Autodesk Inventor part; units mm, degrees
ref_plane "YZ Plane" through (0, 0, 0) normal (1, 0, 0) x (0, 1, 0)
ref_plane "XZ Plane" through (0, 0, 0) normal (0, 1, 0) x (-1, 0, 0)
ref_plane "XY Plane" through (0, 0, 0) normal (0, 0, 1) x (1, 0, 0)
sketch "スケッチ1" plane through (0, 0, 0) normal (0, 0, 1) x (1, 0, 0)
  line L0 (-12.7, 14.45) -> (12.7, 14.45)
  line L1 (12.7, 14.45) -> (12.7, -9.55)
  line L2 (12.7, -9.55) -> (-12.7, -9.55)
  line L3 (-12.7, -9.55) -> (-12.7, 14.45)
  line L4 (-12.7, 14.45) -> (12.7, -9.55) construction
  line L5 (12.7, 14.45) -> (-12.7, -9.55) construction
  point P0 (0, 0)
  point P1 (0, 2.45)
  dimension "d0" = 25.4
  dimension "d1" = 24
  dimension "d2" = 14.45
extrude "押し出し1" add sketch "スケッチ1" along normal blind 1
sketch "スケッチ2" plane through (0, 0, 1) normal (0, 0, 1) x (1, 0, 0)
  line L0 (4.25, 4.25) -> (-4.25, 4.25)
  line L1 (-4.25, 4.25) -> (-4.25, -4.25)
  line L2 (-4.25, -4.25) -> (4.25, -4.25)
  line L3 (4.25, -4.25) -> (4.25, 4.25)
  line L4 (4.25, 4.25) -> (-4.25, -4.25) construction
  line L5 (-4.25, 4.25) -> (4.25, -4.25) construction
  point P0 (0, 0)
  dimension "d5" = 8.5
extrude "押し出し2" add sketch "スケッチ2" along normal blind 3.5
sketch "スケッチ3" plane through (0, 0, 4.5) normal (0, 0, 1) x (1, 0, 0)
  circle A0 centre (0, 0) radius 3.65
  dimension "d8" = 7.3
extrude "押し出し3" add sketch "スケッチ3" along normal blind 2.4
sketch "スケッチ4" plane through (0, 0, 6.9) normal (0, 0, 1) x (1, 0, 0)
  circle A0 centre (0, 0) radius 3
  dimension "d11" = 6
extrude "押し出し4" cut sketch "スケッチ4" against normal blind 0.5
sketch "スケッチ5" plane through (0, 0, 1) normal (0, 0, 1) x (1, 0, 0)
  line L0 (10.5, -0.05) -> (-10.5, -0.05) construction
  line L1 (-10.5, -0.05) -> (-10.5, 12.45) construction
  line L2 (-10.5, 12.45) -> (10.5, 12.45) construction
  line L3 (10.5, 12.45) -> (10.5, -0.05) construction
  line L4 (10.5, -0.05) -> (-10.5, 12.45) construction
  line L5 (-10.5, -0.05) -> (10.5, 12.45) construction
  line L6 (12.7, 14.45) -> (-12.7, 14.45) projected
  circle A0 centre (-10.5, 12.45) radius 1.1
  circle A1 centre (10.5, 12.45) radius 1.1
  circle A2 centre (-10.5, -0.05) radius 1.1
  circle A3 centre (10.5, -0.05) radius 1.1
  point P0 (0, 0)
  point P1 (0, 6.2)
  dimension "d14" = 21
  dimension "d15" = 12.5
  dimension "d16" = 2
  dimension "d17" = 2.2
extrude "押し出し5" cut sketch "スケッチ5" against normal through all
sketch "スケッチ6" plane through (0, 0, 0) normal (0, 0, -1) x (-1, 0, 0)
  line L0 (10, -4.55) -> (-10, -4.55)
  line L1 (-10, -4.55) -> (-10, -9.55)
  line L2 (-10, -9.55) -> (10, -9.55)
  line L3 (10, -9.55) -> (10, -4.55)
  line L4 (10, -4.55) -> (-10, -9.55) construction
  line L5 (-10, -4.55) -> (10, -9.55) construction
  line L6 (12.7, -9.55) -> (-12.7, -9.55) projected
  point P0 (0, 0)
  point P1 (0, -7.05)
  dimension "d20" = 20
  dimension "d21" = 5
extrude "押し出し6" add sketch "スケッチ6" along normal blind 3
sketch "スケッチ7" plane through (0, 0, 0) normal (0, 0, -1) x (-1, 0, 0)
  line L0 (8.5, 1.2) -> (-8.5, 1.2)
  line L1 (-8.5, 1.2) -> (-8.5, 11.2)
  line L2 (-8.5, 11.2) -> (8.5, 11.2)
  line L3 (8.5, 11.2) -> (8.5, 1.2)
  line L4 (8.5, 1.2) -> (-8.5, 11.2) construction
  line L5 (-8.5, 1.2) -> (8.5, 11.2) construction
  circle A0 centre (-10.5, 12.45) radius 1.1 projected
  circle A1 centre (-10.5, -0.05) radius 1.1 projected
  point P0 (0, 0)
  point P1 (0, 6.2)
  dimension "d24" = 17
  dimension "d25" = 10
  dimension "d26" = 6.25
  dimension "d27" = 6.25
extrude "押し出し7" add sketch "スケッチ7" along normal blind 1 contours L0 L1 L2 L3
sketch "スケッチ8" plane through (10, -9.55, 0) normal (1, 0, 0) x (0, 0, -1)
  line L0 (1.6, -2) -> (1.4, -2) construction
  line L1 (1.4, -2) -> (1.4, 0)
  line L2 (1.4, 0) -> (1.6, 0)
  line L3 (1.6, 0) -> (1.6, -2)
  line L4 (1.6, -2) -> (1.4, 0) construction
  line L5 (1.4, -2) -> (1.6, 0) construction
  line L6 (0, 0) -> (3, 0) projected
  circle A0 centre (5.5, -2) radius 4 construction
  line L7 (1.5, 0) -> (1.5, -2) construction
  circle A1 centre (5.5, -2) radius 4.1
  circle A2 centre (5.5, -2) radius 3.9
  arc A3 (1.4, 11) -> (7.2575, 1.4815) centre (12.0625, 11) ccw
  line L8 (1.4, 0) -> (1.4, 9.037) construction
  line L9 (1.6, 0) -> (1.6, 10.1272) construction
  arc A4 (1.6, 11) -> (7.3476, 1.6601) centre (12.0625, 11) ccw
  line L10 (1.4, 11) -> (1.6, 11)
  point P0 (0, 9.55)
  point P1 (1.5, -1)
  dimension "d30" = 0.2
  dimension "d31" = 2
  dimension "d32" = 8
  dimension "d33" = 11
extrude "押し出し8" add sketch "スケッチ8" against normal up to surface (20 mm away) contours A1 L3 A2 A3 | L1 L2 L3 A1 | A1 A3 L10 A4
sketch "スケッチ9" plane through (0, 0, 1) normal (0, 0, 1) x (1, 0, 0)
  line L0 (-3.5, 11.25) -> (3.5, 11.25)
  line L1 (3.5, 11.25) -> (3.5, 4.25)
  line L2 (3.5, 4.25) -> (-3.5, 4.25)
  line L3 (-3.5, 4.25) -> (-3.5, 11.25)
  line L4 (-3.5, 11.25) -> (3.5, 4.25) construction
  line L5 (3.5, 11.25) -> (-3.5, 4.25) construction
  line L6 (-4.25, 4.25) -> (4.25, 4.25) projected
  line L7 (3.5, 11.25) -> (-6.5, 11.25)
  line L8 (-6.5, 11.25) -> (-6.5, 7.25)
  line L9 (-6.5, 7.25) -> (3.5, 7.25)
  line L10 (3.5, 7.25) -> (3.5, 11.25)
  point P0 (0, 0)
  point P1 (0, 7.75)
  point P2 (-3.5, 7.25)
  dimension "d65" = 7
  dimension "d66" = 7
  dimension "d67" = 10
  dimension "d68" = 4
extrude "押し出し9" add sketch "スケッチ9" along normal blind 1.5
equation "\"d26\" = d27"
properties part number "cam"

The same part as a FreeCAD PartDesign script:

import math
import FreeCAD as App
import Part
import Sketcher
Q = App.Units.Quantity


def add_polygon(sketch, points):
    """Adds a closed chain of lines whose ends are joined by coincident constraints."""
    first, n = sketch.GeometryCount, len(points)
    for a, b in zip(points, points[1:] + points[:1]):
        sketch.addGeometry(Part.LineSegment(App.Vector(*a, 0), App.Vector(*b, 0)), False)
    for i in range(n):
        sketch.addConstraint(Sketcher.Constraint("Coincident", first + i, 2, first + (i + 1) % n, 1))

doc = App.newDocument("Part")
body = doc.addObject("PartDesign::Body", "Body")

sketch1 = body.newObject("Sketcher::SketchObject", "Sketch")
sketch1.AttachmentSupport = (doc.getObject("XY_Plane"), [""])
sketch1.MapMode = "FlatFace"
add_polygon(sketch1, [(12.7, 14.45), (-12.7, 14.45), (-12.7, -9.55), (12.7, -9.55)])
sketch1.addConstraint([
    Sketcher.Constraint("Horizontal", 0),
    Sketcher.Constraint("Vertical", 1),
    Sketcher.Constraint("Horizontal", 2),
    Sketcher.Constraint("Vertical", 3),
    Sketcher.Constraint("DistanceY", 1, 2, 1, 1, Q("24 mm")),
    Sketcher.Constraint("DistanceX", 0, 2, 0, 1, Q("25.4 mm")),
    Sketcher.Constraint("DistanceY", -1, 1, 0, 2, Q("14.45 mm")),
    Sketcher.Constraint("DistanceX", 0, 2, -1, 1, Q("12.7 mm")),
])
pad1 = body.newObject("PartDesign::Pad", "Pad")
pad1.Profile = sketch1
pad1.Length = 1

sketch2 = body.newObject("Sketcher::SketchObject", "Sketch001")
sketch2.AttachmentSupport = (doc.getObject("XY_Plane"), [""])
sketch2.MapMode = "FlatFace"
sketch2.AttachmentOffset = App.Placement(App.Vector(0, 0, 1), App.Rotation())
add_polygon(sketch2, [(4.25, -4.25), (4.25, 4.25), (-4.25, 4.25), (-4.25, -4.25)])
sketch2.addConstraint([
    Sketcher.Constraint("Vertical", 0),
    Sketcher.Constraint("Horizontal", 1),
    Sketcher.Constraint("Vertical", 2),
    Sketcher.Constraint("Horizontal", 3),
    Sketcher.Constraint("Symmetric", 0, 2, 2, 2, -1, 1),
    Sketcher.Constraint("Equal", 3, 0),
    Sketcher.Constraint("DistanceX", 1, 2, 1, 1, Q("8.5 mm")),
])
pad2 = body.newObject("PartDesign::Pad", "Pad001")
pad2.Profile = sketch2
pad2.Length = 3.5

sketch3 = body.newObject("Sketcher::SketchObject", "Sketch002")
sketch3.AttachmentSupport = (doc.getObject("XY_Plane"), [""])
sketch3.MapMode = "FlatFace"
sketch3.AttachmentOffset = App.Placement(App.Vector(0, 0, 4.5), App.Rotation())
sketch3.addGeometry(Part.Circle(App.Vector(0, 0, 0), App.Vector(0, 0, 1), 3.65), False)
sketch3.addConstraint([
    Sketcher.Constraint("Coincident", 0, 3, -1, 1),
    Sketcher.Constraint("Diameter", 0, Q("7.3 mm")),
])
pad3 = body.newObject("PartDesign::Pad", "Pad002")
pad3.Profile = sketch3
pad3.Length = 2.4

sketch4 = body.newObject("Sketcher::SketchObject", "Sketch003")
sketch4.AttachmentSupport = (doc.getObject("XY_Plane"), [""])
sketch4.MapMode = "FlatFace"
sketch4.AttachmentOffset = App.Placement(App.Vector(0, 0, 6.9), App.Rotation())
sketch4.addGeometry(Part.Circle(App.Vector(0, 0, 0), App.Vector(0, 0, 1), 3), False)
sketch4.addConstraint([
    Sketcher.Constraint("Coincident", 0, 3, -1, 1),
    Sketcher.Constraint("Diameter", 0, Q("6 mm")),
])
pocket1 = body.newObject("PartDesign::Pocket", "Pocket")
pocket1.Profile = sketch4
pocket1.Length = 0.5

sketch5 = body.newObject("Sketcher::SketchObject", "Sketch004")
sketch5.AttachmentSupport = (doc.getObject("XY_Plane"), [""])
sketch5.MapMode = "FlatFace"
sketch5.AttachmentOffset = App.Placement(App.Vector(0, 0, 1), App.Rotation())
sketch5.addGeometry([
    Part.Circle(App.Vector(-10.5, 12.45, 0), App.Vector(0, 0, 1), 1.1),
    Part.Circle(App.Vector(10.5, 12.45, 0), App.Vector(0, 0, 1), 1.1),
    Part.Circle(App.Vector(-10.5, -0.05, 0), App.Vector(0, 0, 1), 1.1),
    Part.Circle(App.Vector(10.5, -0.05, 0), App.Vector(0, 0, 1), 1.1),
], False)
sketch5.addConstraint([
    Sketcher.Constraint("Equal", 0, 1),
    Sketcher.Constraint("Equal", 1, 2),
    Sketcher.Constraint("Equal", 2, 3),
    Sketcher.Constraint("Symmetric", 0, 3, 1, 3, -2),
    Sketcher.Constraint("Symmetric", 2, 3, 3, 3, -2),
    Sketcher.Constraint("Vertical", 0, 3, 2, 3),
    Sketcher.Constraint("Diameter", 0, Q("2.2 mm")),
    Sketcher.Constraint("DistanceX", 0, 3, 1, 3, Q("21 mm")),
    Sketcher.Constraint("DistanceY", 2, 3, 0, 3, Q("12.5 mm")),
    Sketcher.Constraint("DistanceY", -1, 1, 0, 3, Q("12.45 mm")),
])
pocket2 = body.newObject("PartDesign::Pocket", "Pocket001")
pocket2.Profile = sketch5
pocket2.Type = "ThroughAll"

sketch6 = body.newObject("Sketcher::SketchObject", "Sketch005")
sketch6.AttachmentSupport = (doc.getObject("XY_Plane"), [""])
sketch6.MapMode = "FlatFace"
add_polygon(sketch6, [(-10, -9.55), (-10, -4.55), (10, -4.55), (10, -9.55)])
sketch6.addConstraint([
    Sketcher.Constraint("Vertical", 0),
    Sketcher.Constraint("Horizontal", 1),
    Sketcher.Constraint("Vertical", 2),
    Sketcher.Constraint("Horizontal", 3),
    Sketcher.Constraint("DistanceX", 1, 1, 1, 2, Q("20 mm")),
    Sketcher.Constraint("DistanceY", 0, 1, 0, 2, Q("5 mm")),
    Sketcher.Constraint("DistanceX", 0, 2, -1, 1, Q("10 mm")),
    Sketcher.Constraint("DistanceY", 0, 2, -1, 1, Q("4.55 mm")),
])
pad4 = body.newObject("PartDesign::Pad", "Pad003")
pad4.Profile = sketch6
pad4.Length = 3
pad4.Reversed = True

sketch7 = body.newObject("Sketcher::SketchObject", "Sketch006")
sketch7.AttachmentSupport = (doc.getObject("XY_Plane"), [""])
sketch7.MapMode = "FlatFace"
add_polygon(sketch7, [(8.5, 1.2), (-8.5, 1.2), (-8.5, 11.2), (8.5, 11.2)])
sketch7.addConstraint([
    Sketcher.Constraint("Horizontal", 0),
    Sketcher.Constraint("Vertical", 1),
    Sketcher.Constraint("Horizontal", 2),
    Sketcher.Constraint("Vertical", 3),
    Sketcher.Constraint("DistanceX", 0, 2, 0, 1, Q("17 mm")),
    Sketcher.Constraint("DistanceY", 1, 1, 1, 2, Q("10 mm")),
    Sketcher.Constraint("DistanceX", 0, 2, -1, 1, Q("8.5 mm")),
    Sketcher.Constraint("DistanceY", -1, 1, 0, 2, Q("1.2 mm")),
])
pad5 = body.newObject("PartDesign::Pad", "Pad004")
pad5.Profile = sketch7
pad5.Length = 1
pad5.Reversed = True

sketch8 = body.newObject("Sketcher::SketchObject", "Sketch007")
sketch8.AttachmentSupport = (doc.getObject("YZ_Plane"), [""])
sketch8.MapMode = "FlatFace"
sketch8.AttachmentOffset = App.Placement(App.Vector(0, 0, 10), App.Rotation())
sketch8.addGeometry([
    Part.LineSegment(App.Vector(-11.55, -1.6, 0), App.Vector(-9.55, -1.6, 0)),
    Part.LineSegment(App.Vector(-9.55, -1.6, 0), App.Vector(-9.55, -1.4, 0)),
    Part.LineSegment(App.Vector(-9.55, -1.4, 0), App.Vector(-11.55, -1.4, 0)),
    Part.ArcOfCircle(Part.Circle(App.Vector(-11.55, -5.5, 0), App.Vector(0, 0, 1), 4.1), math.radians(90), math.radians(333.215586)),
    Part.ArcOfCircle(Part.Circle(App.Vector(1.45, -12.0625, 0), App.Vector(0, 0, 1), 10.4625), math.radians(90), math.radians(153.214777)),
    Part.LineSegment(App.Vector(1.45, -1.6, 0), App.Vector(1.45, -1.4, 0)),
    Part.ArcOfCircle(Part.Circle(App.Vector(1.45, -12.0625, 0), App.Vector(0, 0, 1), 10.6625), math.radians(90), math.radians(153.215062)),
    Part.ArcOfCircle(Part.Circle(App.Vector(-11.55, -5.5, 0), App.Vector(0, 0, 1), 3.9), math.radians(90), math.radians(333.214847)),
], False)
sketch8.addConstraint([
    Sketcher.Constraint("Coincident", 0, 2, 1, 1),
    Sketcher.Constraint("Coincident", 1, 2, 2, 1),
    Sketcher.Constraint("Tangent", 2, 2, 3, 1),
    Sketcher.Constraint("Tangent", 3, 2, 4, 2),
    Sketcher.Constraint("Coincident", 4, 1, 5, 1),
    Sketcher.Constraint("Coincident", 5, 2, 6, 1),
    Sketcher.Constraint("Tangent", 6, 2, 7, 2),
    Sketcher.Constraint("Tangent", 7, 1, 0, 1),
    Sketcher.Constraint("Horizontal", 0),
    Sketcher.Constraint("Vertical", 1),
    Sketcher.Constraint("Horizontal", 2),
    Sketcher.Constraint("Vertical", 5),
    Sketcher.Constraint("Coincident", 6, 3, 4, 3),
    Sketcher.Constraint("Coincident", 7, 3, 3, 3),
    Sketcher.Constraint("Horizontal", 0, 2, 4, 1),
    Sketcher.Constraint("Vertical", 6, 3, 4, 1),
    Sketcher.Constraint("DistanceX", 0, 1, 0, 2, Q("2 mm")),
    Sketcher.Constraint("DistanceY", 1, 1, 1, 2, Q("0.2 mm")),
    Sketcher.Constraint("DistanceX", 0, 2, 4, 3, Q("11 mm")),
    Sketcher.Constraint("Radius", 3, Q("4.1 mm")),
    Sketcher.Constraint("DistanceY", 3, 3, -1, 1, Q("5.5 mm")),
    Sketcher.Constraint("DistanceX", 3, 3, -1, 1, Q("11.55 mm")),
])
pad6 = body.newObject("PartDesign::Pad", "Pad005")
pad6.Profile = sketch8
pad6.Length = 20
pad6.Reversed = True

sketch9 = body.newObject("Sketcher::SketchObject", "Sketch008")
sketch9.AttachmentSupport = (doc.getObject("XY_Plane"), [""])
sketch9.MapMode = "FlatFace"
sketch9.AttachmentOffset = App.Placement(App.Vector(0, 0, 1), App.Rotation())
add_polygon(sketch9, [(3.5, 11.25), (-6.5, 11.25), (-6.5, 7.25), (-3.5, 7.25), (-3.5, 4.25), (3.5, 4.25)])
sketch9.addConstraint([
    Sketcher.Constraint("Horizontal", 0),
    Sketcher.Constraint("Vertical", 1),
    Sketcher.Constraint("Horizontal", 2),
    Sketcher.Constraint("Vertical", 3),
    Sketcher.Constraint("Horizontal", 4),
    Sketcher.Constraint("Vertical", 5),
    Sketcher.Constraint("Equal", 2, 3),
    Sketcher.Constraint("Equal", 4, 5),
    Sketcher.Constraint("DistanceX", 0, 2, 0, 1, Q("10 mm")),
    Sketcher.Constraint("DistanceX", 4, 1, 4, 2, Q("7 mm")),
    Sketcher.Constraint("DistanceX", 0, 2, -1, 1, Q("6.5 mm")),
    Sketcher.Constraint("DistanceY", -1, 1, 0, 2, Q("11.25 mm")),
])
pad7 = body.newObject("PartDesign::Pad", "Pad006")
pad7.Profile = sketch9
pad7.Length = 1.5

doc.recompute()
